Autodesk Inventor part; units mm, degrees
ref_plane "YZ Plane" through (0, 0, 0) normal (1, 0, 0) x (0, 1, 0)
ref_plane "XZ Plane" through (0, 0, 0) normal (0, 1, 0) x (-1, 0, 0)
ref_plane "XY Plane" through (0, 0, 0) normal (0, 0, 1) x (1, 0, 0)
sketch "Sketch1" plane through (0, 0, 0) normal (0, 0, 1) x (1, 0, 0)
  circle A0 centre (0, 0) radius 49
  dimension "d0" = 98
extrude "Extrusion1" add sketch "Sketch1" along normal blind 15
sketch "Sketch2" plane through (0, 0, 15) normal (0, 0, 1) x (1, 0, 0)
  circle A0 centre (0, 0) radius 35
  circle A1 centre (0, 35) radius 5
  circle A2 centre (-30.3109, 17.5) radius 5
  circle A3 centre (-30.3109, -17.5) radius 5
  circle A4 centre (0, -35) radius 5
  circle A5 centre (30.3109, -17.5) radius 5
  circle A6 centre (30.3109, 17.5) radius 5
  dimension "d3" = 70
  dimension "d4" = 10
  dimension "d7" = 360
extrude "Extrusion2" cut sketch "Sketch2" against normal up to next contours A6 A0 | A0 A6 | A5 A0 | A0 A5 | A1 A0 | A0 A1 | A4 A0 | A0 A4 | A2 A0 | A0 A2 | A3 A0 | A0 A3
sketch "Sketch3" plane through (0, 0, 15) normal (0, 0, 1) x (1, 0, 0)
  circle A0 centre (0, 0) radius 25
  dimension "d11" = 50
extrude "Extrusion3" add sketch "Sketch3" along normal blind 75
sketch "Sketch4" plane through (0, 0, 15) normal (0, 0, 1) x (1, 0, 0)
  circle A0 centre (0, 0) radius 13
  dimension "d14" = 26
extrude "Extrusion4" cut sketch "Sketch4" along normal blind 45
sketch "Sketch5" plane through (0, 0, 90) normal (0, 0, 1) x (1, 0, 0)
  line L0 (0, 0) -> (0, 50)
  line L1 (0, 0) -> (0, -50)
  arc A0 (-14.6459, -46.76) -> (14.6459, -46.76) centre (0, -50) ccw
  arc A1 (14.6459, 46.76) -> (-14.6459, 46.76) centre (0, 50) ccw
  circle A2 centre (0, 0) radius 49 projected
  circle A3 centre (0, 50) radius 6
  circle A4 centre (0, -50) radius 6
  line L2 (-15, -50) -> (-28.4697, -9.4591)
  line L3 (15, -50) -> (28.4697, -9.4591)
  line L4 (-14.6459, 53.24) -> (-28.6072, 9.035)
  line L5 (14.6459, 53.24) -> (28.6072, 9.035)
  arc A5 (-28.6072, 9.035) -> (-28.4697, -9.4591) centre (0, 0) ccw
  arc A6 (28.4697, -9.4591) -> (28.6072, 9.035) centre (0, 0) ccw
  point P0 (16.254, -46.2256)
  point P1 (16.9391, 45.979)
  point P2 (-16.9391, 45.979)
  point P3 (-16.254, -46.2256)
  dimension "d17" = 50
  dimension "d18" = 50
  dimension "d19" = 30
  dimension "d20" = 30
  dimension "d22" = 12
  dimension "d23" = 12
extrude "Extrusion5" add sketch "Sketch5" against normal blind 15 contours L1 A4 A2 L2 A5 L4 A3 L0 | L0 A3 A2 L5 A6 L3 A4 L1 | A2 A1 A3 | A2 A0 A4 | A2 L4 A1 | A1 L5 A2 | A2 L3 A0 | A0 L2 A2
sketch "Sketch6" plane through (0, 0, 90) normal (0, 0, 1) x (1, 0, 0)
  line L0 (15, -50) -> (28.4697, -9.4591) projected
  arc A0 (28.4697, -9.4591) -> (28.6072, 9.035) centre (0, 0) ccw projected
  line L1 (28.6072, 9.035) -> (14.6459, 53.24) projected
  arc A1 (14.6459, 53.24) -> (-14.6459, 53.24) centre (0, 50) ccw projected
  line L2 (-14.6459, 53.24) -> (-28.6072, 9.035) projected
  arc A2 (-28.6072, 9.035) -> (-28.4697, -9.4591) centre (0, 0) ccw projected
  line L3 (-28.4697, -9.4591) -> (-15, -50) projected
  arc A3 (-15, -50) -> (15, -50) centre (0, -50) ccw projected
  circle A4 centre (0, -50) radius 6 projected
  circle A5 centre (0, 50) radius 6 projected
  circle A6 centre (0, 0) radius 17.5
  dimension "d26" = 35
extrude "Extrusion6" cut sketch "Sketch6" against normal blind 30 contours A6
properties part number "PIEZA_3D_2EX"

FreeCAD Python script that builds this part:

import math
import FreeCAD as App
import Part
import Sketcher

V = App.Vector
Q = App.Units.Quantity

doc = App.newDocument("Part")
body = doc.addObject("PartDesign::Body", "Body")

sketch1 = body.newObject("Sketcher::SketchObject", "Sketch")
sketch1.AttachmentSupport = (doc.getObject("XY_Plane"), [""])
sketch1.MapMode = "FlatFace"
sketch1.addGeometry(Part.Circle(V(0, 0, 0), V(0, 0, 1), 49), False)
sketch1.addConstraint([
    Sketcher.Constraint("Coincident", 0, 3, -1, 1),
    Sketcher.Constraint("Diameter", 0, Q("98 mm")),
])
pad1 = body.newObject("PartDesign::Pad", "Pad")
pad1.Profile = sketch1
pad1.Length = 15

sketch2 = body.newObject("Sketcher::SketchObject", "Sketch001")
sketch2.AttachmentSupport = (doc.getObject("XY_Plane"), [""])
sketch2.MapMode = "FlatFace"
sketch2.AttachmentOffset = App.Placement(V(0, 0, 15), App.Rotation())
sketch2.addGeometry([
    Part.Circle(V(30, 18, 0), V(0, 0, 1), 5),
    Part.Circle(V(30, -18, 0), V(0, 0, 1), 5),
    Part.Circle(V(0, 35, 0), V(0, 0, 1), 5),
    Part.Circle(V(0, -35, 0), V(0, 0, 1), 5),
    Part.Circle(V(-30, 18, 0), V(0, 0, 1), 5),
    Part.Circle(V(-30, -18, 0), V(0, 0, 1), 5),
], False)
sketch2.addConstraint([
    Sketcher.Constraint("Equal", 0, 1),
    Sketcher.Constraint("Equal", 1, 2),
    Sketcher.Constraint("Equal", 2, 3),
    Sketcher.Constraint("Equal", 3, 4),
    Sketcher.Constraint("Equal", 4, 5),
    Sketcher.Constraint("Symmetric", 2, 3, 3, 3, -1, 1),
    Sketcher.Constraint("Symmetric", 1, 3, 4, 3, -1, 1),
    Sketcher.Constraint("Symmetric", 0, 3, 5, 3, -1, 1),
    Sketcher.Constraint("Symmetric", 0, 3, 4, 3, -2),
    Sketcher.Constraint("PointOnObject", 2, 3, -2),
    Sketcher.Constraint("Diameter", 0, Q("10 mm")),
    Sketcher.Constraint("DistanceY", 3, 3, 2, 3, Q("70 mm")),
    Sketcher.Constraint("DistanceY", 1, 3, 0, 3, Q("35 mm")),
    Sketcher.Constraint("DistanceX", -1, 1, 0, 3, Q("30.311 mm")),
])
pocket1 = body.newObject("PartDesign::Pocket", "Pocket")
pocket1.Profile = sketch2
pocket1.Type = "UpToFirst"

sketch3 = body.newObject("Sketcher::SketchObject", "Sketch002")
sketch3.AttachmentSupport = (doc.getObject("XY_Plane"), [""])
sketch3.MapMode = "FlatFace"
sketch3.AttachmentOffset = App.Placement(V(0, 0, 15), App.Rotation())
sketch3.addGeometry(Part.Circle(V(0, 0, 0), V(0, 0, 1), 25), False)
sketch3.addConstraint([
    Sketcher.Constraint("Coincident", 0, 3, -1, 1),
    Sketcher.Constraint("Diameter", 0, Q("50 mm")),
])
pad2 = body.newObject("PartDesign::Pad", "Pad001")
pad2.Profile = sketch3
pad2.Length = 75

sketch4 = body.newObject("Sketcher::SketchObject", "Sketch003")
sketch4.AttachmentSupport = (doc.getObject("XY_Plane"), [""])
sketch4.MapMode = "FlatFace"
sketch4.AttachmentOffset = App.Placement(V(0, 0, 15), App.Rotation())
sketch4.addGeometry(Part.Circle(V(0, 0, 0), V(0, 0, 1), 13), False)
sketch4.addConstraint([
    Sketcher.Constraint("Coincident", 0, 3, -1, 1),
    Sketcher.Constraint("Diameter", 0, Q("26 mm")),
])
pocket2 = body.newObject("PartDesign::Pocket", "Pocket001")
pocket2.Profile = sketch4
pocket2.Length = 45
pocket2.Reversed = True

sketch5 = body.newObject("Sketcher::SketchObject", "Sketch004")
sketch5.AttachmentSupport = (doc.getObject("XY_Plane"), [""])
sketch5.MapMode = "FlatFace"
sketch5.AttachmentOffset = App.Placement(V(0, 0, 90), App.Rotation())
sketch5.addGeometry([
    Part.LineSegment(V(-28, -9, 0), V(-15, -50, 0)),
    Part.ArcOfCircle(Part.Circle(V(0, -50, 0), V(0, 0, 1), 15), math.radians(180), math.radians(360)),
    Part.LineSegment(V(15, -50, 0), V(28, -9, 0)),
    Part.ArcOfCircle(Part.Circle(V(0, 0, 0), V(0, 0, 1), 30), math.radians(-18), math.radians(18)),
    Part.LineSegment(V(29, 9, 0), V(15, 53, 0)),
    Part.ArcOfCircle(Part.Circle(V(0, 50, 0), V(0, 0, 1), 15), math.radians(12), math.radians(168)),
    Part.LineSegment(V(-15, 53, 0), V(-29, 9, 0)),
    Part.ArcOfCircle(Part.Circle(V(0, 0, 0), V(0, 0, 1), 30), math.radians(162), math.radians(198)),
    Part.Circle(V(0, -50, 0), V(0, 0, 1), 6),
    Part.Circle(V(0, 50, 0), V(0, 0, 1), 6),
], False)
sketch5.addConstraint([
    Sketcher.Constraint("Coincident", 0, 2, 1, 1),
    Sketcher.Constraint("Coincident", 1, 2, 2, 1),
    Sketcher.Constraint("Tangent", 2, 2, 3, 1),
    Sketcher.Constraint("Tangent", 3, 2, 4, 1),
    Sketcher.Constraint("Coincident", 4, 2, 5, 1),
    Sketcher.Constraint("Coincident", 5, 2, 6, 1),
    Sketcher.Constraint("Tangent", 6, 2, 7, 1),
    Sketcher.Constraint("Tangent", 7, 2, 0, 1),
    Sketcher.Constraint("Coincident", 3, 3, -1, 1),
    Sketcher.Constraint("Coincident", 7, 3, -1, 1),
    Sketcher.Constraint("Coincident", 8, 3, 1, 3),
    Sketcher.Constraint("Coincident", 9, 3, 5, 3),
    Sketcher.Constraint("Equal", 1, 5),
    Sketcher.Constraint("Equal", 3, 7),
    Sketcher.Constraint("Equal", 8, 9),
    Sketcher.Constraint("Symmetric", 1, 3, 5, 3, -1, 1),
    Sketcher.Constraint("Symmetric", 0, 2, 1, 2, -2),
    Sketcher.Constraint("Horizontal", 8, 3, 0, 2),
    Sketcher.Constraint("Horizontal", 4, 2, 5, 2),
    Sketcher.Constraint("Diameter", 8, Q("12 mm")),
    Sketcher.Constraint("Radius", 1, Q("15 mm")),
    Sketcher.Constraint("Radius", 3, Q("30 mm")),
    Sketcher.Constraint("DistanceY", 1, 3, -1, 1, Q("50 mm")),
    Sketcher.Constraint("DistanceY", -1, 1, 4, 2, Q("53.24 mm")),
])
pad3 = body.newObject("PartDesign::Pad", "Pad002")
pad3.Profile = sketch5
pad3.Length = 15
pad3.Reversed = True

sketch6 = body.newObject("Sketcher::SketchObject", "Sketch005")
sketch6.AttachmentSupport = (doc.getObject("XY_Plane"), [""])
sketch6.MapMode = "FlatFace"
sketch6.AttachmentOffset = App.Placement(V(0, 0, 90), App.Rotation())
sketch6.addGeometry(Part.Circle(V(0, 0, 0), V(0, 0, 1), 18), False)
sketch6.addConstraint([
    Sketcher.Constraint("Coincident", 0, 3, -1, 1),
    Sketcher.Constraint("Diameter", 0, Q("35 mm")),
])
pocket3 = body.newObject("PartDesign::Pocket", "Pocket002")
pocket3.Profile = sketch6
pocket3.Length = 30

doc.recompute()
